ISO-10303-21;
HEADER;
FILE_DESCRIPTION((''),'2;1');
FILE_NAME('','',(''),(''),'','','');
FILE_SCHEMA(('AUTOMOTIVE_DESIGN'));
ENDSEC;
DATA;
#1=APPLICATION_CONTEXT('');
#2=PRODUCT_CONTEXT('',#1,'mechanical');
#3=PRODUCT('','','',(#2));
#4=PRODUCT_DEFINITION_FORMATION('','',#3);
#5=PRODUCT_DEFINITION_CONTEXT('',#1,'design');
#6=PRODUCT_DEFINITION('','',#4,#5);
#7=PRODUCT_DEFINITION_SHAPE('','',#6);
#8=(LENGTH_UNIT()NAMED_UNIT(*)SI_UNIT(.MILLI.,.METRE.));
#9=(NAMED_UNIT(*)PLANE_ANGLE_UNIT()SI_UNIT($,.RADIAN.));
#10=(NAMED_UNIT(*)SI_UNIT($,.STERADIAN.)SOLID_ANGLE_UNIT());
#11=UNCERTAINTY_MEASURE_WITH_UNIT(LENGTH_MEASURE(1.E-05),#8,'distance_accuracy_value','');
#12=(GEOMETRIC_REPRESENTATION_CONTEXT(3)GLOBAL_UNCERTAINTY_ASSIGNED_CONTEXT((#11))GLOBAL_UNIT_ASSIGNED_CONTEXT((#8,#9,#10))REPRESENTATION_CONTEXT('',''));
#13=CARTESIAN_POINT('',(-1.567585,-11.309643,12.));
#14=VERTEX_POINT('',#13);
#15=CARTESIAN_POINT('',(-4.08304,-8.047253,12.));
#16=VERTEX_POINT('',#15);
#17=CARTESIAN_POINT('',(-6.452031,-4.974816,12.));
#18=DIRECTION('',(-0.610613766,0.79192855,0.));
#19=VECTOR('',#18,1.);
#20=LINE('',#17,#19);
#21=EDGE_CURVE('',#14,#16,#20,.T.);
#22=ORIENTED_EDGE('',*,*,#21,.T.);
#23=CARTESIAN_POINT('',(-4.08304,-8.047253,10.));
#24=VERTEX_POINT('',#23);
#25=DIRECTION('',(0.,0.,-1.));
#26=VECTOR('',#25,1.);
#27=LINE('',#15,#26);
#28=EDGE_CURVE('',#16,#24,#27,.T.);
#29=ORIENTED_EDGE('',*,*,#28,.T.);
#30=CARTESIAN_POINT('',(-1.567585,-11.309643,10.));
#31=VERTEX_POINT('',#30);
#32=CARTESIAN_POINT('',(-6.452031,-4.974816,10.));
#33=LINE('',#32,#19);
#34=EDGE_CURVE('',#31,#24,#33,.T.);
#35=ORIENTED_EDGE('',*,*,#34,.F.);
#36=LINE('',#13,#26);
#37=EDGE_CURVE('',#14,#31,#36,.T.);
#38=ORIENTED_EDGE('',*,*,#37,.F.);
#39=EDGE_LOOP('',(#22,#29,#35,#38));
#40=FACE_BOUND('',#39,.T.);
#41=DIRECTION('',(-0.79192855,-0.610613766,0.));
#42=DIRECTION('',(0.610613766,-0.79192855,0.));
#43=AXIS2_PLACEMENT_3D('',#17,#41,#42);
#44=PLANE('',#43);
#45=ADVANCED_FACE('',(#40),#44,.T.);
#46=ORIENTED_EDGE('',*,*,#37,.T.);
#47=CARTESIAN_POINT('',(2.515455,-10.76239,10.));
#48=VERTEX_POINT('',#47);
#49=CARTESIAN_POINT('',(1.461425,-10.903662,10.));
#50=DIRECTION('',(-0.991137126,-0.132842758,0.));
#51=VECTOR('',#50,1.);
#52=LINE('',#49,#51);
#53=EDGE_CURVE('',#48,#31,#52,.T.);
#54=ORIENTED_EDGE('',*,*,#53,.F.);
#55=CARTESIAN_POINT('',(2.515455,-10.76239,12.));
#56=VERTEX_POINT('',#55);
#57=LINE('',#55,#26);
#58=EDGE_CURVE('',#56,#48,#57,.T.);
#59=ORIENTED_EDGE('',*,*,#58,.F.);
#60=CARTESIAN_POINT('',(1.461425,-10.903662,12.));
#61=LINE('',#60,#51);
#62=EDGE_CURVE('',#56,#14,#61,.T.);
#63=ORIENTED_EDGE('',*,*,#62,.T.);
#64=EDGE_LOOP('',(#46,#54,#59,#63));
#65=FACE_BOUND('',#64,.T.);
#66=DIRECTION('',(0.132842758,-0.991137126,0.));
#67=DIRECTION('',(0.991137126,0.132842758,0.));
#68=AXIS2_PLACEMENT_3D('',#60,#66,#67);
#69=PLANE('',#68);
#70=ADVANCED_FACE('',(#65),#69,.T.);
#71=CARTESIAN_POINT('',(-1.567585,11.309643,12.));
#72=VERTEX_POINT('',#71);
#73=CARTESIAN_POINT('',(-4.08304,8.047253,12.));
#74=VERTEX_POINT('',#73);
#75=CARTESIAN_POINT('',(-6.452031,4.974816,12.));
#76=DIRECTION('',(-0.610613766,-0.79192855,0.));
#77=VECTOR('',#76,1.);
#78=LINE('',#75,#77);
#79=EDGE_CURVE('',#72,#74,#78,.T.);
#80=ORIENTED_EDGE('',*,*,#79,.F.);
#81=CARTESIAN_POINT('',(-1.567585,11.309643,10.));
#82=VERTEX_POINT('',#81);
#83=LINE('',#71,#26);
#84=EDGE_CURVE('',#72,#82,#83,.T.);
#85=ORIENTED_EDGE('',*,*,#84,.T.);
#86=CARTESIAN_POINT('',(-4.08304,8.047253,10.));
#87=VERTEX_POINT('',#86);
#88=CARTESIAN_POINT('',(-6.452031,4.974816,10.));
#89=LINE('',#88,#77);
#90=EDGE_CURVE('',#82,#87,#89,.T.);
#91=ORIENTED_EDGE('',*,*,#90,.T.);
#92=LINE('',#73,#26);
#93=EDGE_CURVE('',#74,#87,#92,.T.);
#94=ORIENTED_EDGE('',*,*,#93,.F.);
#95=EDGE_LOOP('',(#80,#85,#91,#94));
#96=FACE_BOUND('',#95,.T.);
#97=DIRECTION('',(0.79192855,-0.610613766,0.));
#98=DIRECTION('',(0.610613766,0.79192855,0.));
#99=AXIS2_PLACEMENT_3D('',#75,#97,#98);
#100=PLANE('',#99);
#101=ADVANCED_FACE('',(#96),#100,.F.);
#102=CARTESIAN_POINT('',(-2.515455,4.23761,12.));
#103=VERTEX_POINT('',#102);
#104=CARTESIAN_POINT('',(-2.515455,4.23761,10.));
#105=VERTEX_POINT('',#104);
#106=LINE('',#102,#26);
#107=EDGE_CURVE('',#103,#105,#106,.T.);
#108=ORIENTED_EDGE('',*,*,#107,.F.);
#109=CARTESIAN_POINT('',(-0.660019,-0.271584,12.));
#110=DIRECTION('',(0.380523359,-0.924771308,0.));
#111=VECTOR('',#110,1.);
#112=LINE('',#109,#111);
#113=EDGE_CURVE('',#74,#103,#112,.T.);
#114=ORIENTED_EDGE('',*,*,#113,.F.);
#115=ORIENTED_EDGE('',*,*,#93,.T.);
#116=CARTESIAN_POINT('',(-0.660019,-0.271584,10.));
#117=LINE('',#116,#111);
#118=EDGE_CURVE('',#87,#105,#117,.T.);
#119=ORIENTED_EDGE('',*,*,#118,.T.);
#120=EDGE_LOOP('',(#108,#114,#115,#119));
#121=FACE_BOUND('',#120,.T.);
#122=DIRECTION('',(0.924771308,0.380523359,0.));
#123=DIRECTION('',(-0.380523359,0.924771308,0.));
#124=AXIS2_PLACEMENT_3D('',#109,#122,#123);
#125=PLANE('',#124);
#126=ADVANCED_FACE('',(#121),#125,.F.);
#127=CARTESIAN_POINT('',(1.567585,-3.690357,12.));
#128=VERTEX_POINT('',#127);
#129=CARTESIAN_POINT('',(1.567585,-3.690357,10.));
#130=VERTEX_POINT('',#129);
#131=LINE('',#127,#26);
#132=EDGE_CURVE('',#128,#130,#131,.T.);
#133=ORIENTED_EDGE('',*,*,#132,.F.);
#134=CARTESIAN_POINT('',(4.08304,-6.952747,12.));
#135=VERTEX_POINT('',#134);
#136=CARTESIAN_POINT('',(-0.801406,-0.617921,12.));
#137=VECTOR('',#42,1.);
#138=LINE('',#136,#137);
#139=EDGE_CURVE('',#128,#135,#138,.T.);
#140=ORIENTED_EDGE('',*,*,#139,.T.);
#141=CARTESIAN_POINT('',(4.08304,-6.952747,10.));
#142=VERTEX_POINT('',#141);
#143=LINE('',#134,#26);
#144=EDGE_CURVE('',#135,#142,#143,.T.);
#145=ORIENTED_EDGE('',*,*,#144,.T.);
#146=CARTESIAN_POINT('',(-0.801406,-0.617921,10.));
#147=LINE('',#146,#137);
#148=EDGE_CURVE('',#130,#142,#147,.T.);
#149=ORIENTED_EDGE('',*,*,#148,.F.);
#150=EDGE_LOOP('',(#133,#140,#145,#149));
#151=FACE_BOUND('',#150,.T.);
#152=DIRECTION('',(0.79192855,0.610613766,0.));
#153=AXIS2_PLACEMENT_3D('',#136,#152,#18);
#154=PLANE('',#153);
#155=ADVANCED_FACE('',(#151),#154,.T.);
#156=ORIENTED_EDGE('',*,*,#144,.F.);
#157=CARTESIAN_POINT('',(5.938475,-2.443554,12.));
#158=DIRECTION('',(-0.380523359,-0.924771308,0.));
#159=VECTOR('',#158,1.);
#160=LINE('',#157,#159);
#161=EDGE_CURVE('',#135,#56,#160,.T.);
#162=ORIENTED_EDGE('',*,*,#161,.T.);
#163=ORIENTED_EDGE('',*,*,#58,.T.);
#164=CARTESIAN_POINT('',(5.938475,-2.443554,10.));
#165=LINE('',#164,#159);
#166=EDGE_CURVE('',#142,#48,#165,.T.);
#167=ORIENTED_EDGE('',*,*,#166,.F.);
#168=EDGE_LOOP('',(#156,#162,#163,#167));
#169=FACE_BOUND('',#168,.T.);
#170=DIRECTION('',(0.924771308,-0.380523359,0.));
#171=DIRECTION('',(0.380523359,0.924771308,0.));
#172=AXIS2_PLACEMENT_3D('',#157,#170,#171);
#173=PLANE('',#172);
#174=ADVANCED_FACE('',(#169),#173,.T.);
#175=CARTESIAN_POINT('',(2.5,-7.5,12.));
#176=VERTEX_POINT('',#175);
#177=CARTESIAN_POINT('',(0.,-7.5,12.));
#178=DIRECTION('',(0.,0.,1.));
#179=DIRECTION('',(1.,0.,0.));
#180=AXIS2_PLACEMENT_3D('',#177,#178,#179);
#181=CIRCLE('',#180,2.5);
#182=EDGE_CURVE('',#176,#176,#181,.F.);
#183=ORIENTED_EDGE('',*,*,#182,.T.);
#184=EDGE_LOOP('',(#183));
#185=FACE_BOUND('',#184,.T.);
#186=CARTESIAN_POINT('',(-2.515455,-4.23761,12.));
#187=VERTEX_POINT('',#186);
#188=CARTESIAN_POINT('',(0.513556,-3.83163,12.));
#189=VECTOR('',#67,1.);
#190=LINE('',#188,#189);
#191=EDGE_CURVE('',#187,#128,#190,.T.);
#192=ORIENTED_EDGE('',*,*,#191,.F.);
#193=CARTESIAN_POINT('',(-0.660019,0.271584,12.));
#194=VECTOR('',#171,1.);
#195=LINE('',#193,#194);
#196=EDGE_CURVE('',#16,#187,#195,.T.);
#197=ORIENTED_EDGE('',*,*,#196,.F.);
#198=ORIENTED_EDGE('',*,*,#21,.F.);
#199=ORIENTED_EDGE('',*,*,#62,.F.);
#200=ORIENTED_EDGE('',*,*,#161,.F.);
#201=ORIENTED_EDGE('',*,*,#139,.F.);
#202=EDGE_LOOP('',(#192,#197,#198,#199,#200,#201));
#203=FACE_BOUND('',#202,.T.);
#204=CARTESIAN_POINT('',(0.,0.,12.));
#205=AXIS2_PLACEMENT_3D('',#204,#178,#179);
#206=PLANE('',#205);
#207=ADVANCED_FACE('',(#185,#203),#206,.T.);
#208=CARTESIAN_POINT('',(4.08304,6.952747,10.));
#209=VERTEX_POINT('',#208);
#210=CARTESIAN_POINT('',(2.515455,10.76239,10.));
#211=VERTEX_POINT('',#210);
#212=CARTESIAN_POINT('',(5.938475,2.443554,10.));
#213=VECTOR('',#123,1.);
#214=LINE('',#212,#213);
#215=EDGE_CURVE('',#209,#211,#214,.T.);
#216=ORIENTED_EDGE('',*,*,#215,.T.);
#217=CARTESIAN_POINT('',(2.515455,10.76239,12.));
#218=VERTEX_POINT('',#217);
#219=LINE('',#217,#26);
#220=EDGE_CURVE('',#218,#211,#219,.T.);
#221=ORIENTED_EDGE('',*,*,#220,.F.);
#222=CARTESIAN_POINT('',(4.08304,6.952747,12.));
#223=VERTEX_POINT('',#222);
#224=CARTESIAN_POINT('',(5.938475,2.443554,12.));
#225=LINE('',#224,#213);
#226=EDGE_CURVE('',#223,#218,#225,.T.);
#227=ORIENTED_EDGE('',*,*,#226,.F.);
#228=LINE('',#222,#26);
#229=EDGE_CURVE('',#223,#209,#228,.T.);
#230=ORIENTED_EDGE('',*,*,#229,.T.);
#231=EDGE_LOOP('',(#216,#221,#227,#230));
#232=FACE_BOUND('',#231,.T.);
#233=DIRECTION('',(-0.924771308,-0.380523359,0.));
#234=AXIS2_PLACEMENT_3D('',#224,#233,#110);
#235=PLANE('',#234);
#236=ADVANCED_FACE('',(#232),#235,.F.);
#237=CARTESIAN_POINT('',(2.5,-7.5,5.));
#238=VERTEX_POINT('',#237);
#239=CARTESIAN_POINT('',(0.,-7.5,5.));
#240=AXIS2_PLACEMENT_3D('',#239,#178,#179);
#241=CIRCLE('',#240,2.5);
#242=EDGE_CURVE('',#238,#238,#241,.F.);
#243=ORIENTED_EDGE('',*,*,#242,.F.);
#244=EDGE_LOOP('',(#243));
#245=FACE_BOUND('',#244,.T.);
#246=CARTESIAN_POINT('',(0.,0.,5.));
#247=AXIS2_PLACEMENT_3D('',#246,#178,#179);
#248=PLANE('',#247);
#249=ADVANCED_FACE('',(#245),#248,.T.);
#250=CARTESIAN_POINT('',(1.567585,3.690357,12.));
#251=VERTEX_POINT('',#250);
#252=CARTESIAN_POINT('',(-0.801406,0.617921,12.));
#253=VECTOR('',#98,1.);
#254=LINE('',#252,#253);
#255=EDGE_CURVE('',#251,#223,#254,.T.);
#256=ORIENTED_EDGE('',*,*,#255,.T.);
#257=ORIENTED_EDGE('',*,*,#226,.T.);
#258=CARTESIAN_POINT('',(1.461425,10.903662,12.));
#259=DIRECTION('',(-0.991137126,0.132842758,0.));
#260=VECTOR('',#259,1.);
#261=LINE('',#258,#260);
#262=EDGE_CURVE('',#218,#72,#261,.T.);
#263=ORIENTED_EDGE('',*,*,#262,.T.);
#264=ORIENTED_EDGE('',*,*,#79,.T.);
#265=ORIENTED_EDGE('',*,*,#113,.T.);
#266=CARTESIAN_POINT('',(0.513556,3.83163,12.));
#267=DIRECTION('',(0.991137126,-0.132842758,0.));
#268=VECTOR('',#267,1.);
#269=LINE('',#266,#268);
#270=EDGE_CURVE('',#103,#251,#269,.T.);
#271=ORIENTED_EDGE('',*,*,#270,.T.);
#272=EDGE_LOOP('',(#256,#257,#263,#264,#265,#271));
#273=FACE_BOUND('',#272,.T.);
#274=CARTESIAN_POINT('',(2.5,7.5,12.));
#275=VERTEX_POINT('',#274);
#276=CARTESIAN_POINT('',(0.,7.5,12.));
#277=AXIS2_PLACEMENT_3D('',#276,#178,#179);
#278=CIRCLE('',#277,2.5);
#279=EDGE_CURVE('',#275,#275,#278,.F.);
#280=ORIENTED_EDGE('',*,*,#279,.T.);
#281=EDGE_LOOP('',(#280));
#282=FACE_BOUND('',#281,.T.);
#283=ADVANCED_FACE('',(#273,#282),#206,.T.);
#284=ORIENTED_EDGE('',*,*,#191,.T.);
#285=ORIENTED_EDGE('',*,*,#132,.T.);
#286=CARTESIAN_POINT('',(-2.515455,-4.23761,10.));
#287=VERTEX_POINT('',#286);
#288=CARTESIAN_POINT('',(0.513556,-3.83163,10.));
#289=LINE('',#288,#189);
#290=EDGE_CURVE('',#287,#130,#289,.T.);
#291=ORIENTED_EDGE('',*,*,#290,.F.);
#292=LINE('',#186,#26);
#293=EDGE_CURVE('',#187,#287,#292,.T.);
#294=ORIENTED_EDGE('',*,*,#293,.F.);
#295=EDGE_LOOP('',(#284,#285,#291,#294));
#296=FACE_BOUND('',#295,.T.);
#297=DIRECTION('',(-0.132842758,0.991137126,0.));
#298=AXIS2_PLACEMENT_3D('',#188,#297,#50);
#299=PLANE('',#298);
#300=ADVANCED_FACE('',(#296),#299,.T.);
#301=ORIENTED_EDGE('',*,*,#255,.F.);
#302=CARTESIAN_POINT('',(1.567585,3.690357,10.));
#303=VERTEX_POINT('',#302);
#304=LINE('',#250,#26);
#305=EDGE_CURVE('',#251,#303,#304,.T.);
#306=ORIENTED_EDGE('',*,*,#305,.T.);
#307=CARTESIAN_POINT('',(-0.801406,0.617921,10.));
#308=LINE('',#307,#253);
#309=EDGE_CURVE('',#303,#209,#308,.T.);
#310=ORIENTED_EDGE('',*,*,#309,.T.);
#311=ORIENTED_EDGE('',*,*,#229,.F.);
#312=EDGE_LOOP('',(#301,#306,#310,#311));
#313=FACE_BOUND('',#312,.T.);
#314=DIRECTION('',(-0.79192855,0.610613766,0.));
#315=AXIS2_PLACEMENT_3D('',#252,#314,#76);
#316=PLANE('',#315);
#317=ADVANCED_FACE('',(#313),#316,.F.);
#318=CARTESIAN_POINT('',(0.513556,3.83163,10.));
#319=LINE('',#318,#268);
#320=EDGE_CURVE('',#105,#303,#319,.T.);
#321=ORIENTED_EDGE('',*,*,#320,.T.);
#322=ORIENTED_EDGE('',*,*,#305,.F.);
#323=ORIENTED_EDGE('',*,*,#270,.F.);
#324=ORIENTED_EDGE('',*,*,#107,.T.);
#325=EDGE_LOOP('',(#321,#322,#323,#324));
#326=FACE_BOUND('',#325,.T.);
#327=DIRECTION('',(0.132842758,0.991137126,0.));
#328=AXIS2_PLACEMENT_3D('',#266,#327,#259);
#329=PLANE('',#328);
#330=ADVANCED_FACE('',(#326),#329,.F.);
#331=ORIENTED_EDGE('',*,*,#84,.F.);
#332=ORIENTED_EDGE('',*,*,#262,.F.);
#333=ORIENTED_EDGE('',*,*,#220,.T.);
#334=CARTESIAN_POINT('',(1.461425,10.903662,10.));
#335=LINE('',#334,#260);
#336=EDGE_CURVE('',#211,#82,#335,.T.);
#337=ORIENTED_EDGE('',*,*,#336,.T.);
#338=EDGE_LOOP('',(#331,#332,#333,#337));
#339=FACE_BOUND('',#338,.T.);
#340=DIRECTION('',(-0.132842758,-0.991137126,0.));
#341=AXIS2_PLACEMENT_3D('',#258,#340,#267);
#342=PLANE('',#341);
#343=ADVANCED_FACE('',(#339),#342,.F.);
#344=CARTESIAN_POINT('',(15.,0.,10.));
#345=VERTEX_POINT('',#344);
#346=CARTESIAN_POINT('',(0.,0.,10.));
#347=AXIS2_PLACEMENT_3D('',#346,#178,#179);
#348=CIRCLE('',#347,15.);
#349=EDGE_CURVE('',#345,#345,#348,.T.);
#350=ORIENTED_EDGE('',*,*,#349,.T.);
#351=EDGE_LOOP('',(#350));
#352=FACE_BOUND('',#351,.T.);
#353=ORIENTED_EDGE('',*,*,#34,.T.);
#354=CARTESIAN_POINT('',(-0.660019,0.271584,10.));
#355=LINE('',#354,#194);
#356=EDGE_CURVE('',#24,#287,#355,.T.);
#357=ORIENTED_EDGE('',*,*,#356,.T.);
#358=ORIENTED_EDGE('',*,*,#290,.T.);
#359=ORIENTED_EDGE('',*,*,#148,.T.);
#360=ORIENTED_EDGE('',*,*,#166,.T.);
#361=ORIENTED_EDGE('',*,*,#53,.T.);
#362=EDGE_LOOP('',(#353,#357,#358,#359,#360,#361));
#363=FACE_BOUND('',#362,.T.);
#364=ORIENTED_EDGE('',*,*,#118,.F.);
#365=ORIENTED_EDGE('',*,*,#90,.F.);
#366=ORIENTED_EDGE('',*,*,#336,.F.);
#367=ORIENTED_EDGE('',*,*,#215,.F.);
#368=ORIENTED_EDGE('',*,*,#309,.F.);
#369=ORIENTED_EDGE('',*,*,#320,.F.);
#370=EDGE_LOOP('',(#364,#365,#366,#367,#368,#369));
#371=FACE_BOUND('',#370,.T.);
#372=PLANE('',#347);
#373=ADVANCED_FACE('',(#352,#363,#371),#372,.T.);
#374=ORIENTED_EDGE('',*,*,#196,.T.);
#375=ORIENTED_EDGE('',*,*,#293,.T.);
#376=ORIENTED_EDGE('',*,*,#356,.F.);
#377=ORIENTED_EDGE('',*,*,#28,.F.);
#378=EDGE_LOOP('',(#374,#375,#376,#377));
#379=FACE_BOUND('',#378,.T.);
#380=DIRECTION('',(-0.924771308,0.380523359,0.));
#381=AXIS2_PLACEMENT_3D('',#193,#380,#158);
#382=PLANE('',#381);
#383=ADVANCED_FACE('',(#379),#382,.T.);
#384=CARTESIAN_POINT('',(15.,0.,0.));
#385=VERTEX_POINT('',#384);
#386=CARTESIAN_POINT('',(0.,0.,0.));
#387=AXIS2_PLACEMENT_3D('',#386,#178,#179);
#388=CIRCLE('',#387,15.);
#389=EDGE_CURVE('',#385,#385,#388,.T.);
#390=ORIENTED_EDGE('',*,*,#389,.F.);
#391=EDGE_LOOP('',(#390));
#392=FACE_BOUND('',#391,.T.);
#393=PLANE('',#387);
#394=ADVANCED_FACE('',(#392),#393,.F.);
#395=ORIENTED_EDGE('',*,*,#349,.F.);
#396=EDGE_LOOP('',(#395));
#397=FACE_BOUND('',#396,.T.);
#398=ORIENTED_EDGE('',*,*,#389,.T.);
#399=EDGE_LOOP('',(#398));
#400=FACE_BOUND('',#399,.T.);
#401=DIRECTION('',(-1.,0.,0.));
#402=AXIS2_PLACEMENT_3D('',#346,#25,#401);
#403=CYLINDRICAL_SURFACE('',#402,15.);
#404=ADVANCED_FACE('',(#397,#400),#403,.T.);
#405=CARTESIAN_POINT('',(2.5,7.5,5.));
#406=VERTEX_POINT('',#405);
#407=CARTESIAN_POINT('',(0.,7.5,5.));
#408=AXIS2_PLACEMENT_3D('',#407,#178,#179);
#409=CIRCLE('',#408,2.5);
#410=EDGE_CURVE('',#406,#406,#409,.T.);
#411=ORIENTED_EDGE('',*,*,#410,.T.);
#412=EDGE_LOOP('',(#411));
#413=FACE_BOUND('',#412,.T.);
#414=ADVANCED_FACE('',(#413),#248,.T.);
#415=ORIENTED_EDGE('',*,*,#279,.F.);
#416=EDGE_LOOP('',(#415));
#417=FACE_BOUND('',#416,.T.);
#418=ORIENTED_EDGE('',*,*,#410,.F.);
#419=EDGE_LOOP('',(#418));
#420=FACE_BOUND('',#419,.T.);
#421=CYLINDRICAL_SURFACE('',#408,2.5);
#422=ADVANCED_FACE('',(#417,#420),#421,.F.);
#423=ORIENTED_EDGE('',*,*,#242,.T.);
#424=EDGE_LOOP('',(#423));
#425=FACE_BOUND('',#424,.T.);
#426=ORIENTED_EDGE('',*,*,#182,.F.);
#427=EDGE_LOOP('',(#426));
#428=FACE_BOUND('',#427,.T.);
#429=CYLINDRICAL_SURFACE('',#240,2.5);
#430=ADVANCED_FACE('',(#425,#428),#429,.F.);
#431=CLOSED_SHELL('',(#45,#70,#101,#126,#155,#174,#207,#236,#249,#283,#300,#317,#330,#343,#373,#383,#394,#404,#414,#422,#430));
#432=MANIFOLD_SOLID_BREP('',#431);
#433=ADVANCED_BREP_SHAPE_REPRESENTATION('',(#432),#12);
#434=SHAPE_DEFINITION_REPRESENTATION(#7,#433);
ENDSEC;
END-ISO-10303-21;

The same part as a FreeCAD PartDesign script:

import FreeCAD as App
import Part
import Sketcher
from FreeCAD import Vector

doc = App.newDocument("Part")
body = doc.addObject("PartDesign::Body", "Body")

# Sketch on XY plane
sketch1 = doc.addObject("Sketcher::SketchObject", "Sketch")
body.addObject(sketch1)
sketch1.AttachmentSupport = (doc.XY_Plane, [""])
sketch1.MapMode = "FlatFace"
sketch1.addGeometry(Part.Circle(Vector(0, 0, 0), Vector(0, 0, 1), 15), False)
sketch1.addConstraint(Sketcher.Constraint("Coincident", 0, 3, -1, 1))
sketch1.addConstraint(Sketcher.Constraint("Diameter", 0, 30.0))
pad1 = doc.addObject("PartDesign::Pad", "Pad")
body.addObject(pad1)
pad1.Profile = sketch1
pad1.Length = 10

# Sketch on XY plane
sketch2 = doc.addObject("Sketcher::SketchObject", "Sketch001")
body.addObject(sketch2)
sketch2.AttachmentSupport = (doc.XY_Plane, [""])
sketch2.MapMode = "FlatFace"
sketch2.AttachmentOffset = App.Placement(Vector(0, 0, 10), App.Rotation())
sketch2.addGeometry(Part.Circle(Vector(0, 7.5, 0), Vector(0, 0, 1), 2.5), False)
sketch2.addGeometry(Part.Circle(Vector(0, -7.5, 0), Vector(0, 0, 1), 2.5), False)
sketch2.addConstraint(Sketcher.Constraint("Equal", 0, 1))
sketch2.addConstraint(Sketcher.Constraint("Symmetric", 0, 3, 1, 3, -1, 1))
sketch2.addConstraint(Sketcher.Constraint("PointOnObject", 0, 3, -2))
sketch2.addConstraint(Sketcher.Constraint("Diameter", 0, 5.0))
sketch2.addConstraint(Sketcher.Constraint("DistanceY", 1, 3, 0, 3, 15.0))
pocket1 = doc.addObject("PartDesign::Pocket", "Pocket")
body.addObject(pocket1)
pocket1.Profile = sketch2
pocket1.Length = 5

# Sketch on XY plane
sketch3 = doc.addObject("Sketcher::SketchObject", "Sketch002")
body.addObject(sketch3)
sketch3.AttachmentSupport = (doc.XY_Plane, [""])
sketch3.MapMode = "FlatFace"
sketch3.AttachmentOffset = App.Placement(Vector(0, 0, 12), App.Rotation())
sketch3.addGeometry(Part.LineSegment(Vector(-4.1, 8, 0), Vector(-2.5, 4.2, 0)), False)
sketch3.addGeometry(Part.LineSegment(Vector(-2.5, 4.2, 0), Vector(1.6, 3.7, 0)), False)
sketch3.addGeometry(Part.LineSegment(Vector(1.6, 3.7, 0), Vector(4.1, 7, 0)), False)
sketch3.addGeometry(Part.LineSegment(Vector(4.1, 7, 0), Vector(2.5, 10.8, 0)), False)
sketch3.addGeometry(Part.LineSegment(Vector(2.5, 10.8, 0), Vector(-1.6, 11.3, 0)), False)
sketch3.addGeometry(Part.LineSegment(Vector(-1.6, 11.3, 0), Vector(-4.1, 8, 0)), False)
sketch3.addGeometry(Part.Circle(Vector(0, 7.5, 0), Vector(0, 0, 1), 2.5), False)
sketch3.addGeometry(Part.LineSegment(Vector(4.1, -7, 0), Vector(1.6, -3.7, 0)), False)
sketch3.addGeometry(Part.LineSegment(Vector(1.6, -3.7, 0), Vector(-2.5, -4.2, 0)), False)
sketch3.addGeometry(Part.LineSegment(Vector(-2.5, -4.2, 0), Vector(-4.1, -8, 0)), False)
sketch3.addGeometry(Part.LineSegment(Vector(-4.1, -8, 0), Vector(-1.6, -11.3, 0)), False)
sketch3.addGeometry(Part.LineSegment(Vector(-1.6, -11.3, 0), Vector(2.5, -10.8, 0)), False)
sketch3.addGeometry(Part.LineSegment(Vector(2.5, -10.8, 0), Vector(4.1, -7, 0)), False)
sketch3.addGeometry(Part.Circle(Vector(0, -7.5, 0), Vector(0, 0, 1), 2.5), False)
sketch3.addConstraint(Sketcher.Constraint("Coincident", 0, 2, 1, 1))
sketch3.addConstraint(Sketcher.Constraint("Coincident", 1, 2, 2, 1))
sketch3.addConstraint(Sketcher.Constraint("Coincident", 2, 2, 3, 1))
sketch3.addConstraint(Sketcher.Constraint("Coincident", 3, 2, 4, 1))
sketch3.addConstraint(Sketcher.Constraint("Coincident", 4, 2, 5, 1))
sketch3.addConstraint(Sketcher.Constraint("Coincident", 5, 2, 0, 1))
sketch3.addConstraint(Sketcher.Constraint("Coincident", 7, 2, 8, 1))
sketch3.addConstraint(Sketcher.Constraint("Coincident", 8, 2, 9, 1))
sketch3.addConstraint(Sketcher.Constraint("Coincident", 9, 2, 10, 1))
sketch3.addConstraint(Sketcher.Constraint("Coincident", 10, 2, 11, 1))
sketch3.addConstraint(Sketcher.Constraint("Coincident", 11, 2, 12, 1))
sketch3.addConstraint(Sketcher.Constraint("Coincident", 12, 2, 7, 1))
sketch3.addConstraint(Sketcher.Constraint("Equal", 6, 13))
sketch3.addConstraint(Sketcher.Constraint("Symmetric", 6, 3, 13, 3, -1, 1))
sketch3.addConstraint(Sketcher.Constraint("Symmetric", 1, 2, 7, 2, -1))
sketch3.addConstraint(Sketcher.Constraint("Symmetric", 0, 2, 8, 2, -1))
sketch3.addConstraint(Sketcher.Constraint("Symmetric", 5, 2, 9, 2, -1))
sketch3.addConstraint(Sketcher.Constraint("Symmetric", 4, 2, 10, 2, -1))
sketch3.addConstraint(Sketcher.Constraint("Symmetric", 3, 2, 11, 2, -1))
sketch3.addConstraint(Sketcher.Constraint("Symmetric", 2, 2, 12, 2, -1))
sketch3.addConstraint(Sketcher.Constraint("PointOnObject", 6, 3, -2))
sketch3.addConstraint(Sketcher.Constraint("Parallel", 0, 3))
sketch3.addConstraint(Sketcher.Constraint("Parallel", 1, 4))
sketch3.addConstraint(Sketcher.Constraint("Parallel", 2, 5))
sketch3.addConstraint(Sketcher.Constraint("Equal", 0, 1))
sketch3.addConstraint(Sketcher.Constraint("Equal", 1, 2))
sketch3.addConstraint(Sketcher.Constraint("Equal", 2, 3))
sketch3.addConstraint(Sketcher.Constraint("Diameter", 6, 5.0))
sketch3.addConstraint(Sketcher.Constraint("DistanceY", 13, 3, 6, 3, 15.0))
sketch3.addConstraint(Sketcher.Constraint("DistanceY", 10, 2, 1, 2, 15.0))
sketch3.addConstraint(Sketcher.Constraint("Distance", 0, 4.119551))
sketch3.addConstraint(Sketcher.Constraint("DistanceY", -1, 1, 0, 2, 4.23761))
sketch3.addConstraint(Sketcher.Constraint("DistanceX", -1, 1, 2, 2, 4.08304))
sketch3.addConstraint(Sketcher.Constraint("DistanceX", 5, 2, -1, 1, 4.08304))
sketch3.addConstraint(Sketcher.Constraint("DistanceX", 0, 2, 1, 2, 4.08304))
pad2 = doc.addObject("PartDesign::Pad", "Pad001")
body.addObject(pad2)
pad2.Profile = sketch3
pad2.Length = 2
pad2.Reversed = True

doc.recompute()
